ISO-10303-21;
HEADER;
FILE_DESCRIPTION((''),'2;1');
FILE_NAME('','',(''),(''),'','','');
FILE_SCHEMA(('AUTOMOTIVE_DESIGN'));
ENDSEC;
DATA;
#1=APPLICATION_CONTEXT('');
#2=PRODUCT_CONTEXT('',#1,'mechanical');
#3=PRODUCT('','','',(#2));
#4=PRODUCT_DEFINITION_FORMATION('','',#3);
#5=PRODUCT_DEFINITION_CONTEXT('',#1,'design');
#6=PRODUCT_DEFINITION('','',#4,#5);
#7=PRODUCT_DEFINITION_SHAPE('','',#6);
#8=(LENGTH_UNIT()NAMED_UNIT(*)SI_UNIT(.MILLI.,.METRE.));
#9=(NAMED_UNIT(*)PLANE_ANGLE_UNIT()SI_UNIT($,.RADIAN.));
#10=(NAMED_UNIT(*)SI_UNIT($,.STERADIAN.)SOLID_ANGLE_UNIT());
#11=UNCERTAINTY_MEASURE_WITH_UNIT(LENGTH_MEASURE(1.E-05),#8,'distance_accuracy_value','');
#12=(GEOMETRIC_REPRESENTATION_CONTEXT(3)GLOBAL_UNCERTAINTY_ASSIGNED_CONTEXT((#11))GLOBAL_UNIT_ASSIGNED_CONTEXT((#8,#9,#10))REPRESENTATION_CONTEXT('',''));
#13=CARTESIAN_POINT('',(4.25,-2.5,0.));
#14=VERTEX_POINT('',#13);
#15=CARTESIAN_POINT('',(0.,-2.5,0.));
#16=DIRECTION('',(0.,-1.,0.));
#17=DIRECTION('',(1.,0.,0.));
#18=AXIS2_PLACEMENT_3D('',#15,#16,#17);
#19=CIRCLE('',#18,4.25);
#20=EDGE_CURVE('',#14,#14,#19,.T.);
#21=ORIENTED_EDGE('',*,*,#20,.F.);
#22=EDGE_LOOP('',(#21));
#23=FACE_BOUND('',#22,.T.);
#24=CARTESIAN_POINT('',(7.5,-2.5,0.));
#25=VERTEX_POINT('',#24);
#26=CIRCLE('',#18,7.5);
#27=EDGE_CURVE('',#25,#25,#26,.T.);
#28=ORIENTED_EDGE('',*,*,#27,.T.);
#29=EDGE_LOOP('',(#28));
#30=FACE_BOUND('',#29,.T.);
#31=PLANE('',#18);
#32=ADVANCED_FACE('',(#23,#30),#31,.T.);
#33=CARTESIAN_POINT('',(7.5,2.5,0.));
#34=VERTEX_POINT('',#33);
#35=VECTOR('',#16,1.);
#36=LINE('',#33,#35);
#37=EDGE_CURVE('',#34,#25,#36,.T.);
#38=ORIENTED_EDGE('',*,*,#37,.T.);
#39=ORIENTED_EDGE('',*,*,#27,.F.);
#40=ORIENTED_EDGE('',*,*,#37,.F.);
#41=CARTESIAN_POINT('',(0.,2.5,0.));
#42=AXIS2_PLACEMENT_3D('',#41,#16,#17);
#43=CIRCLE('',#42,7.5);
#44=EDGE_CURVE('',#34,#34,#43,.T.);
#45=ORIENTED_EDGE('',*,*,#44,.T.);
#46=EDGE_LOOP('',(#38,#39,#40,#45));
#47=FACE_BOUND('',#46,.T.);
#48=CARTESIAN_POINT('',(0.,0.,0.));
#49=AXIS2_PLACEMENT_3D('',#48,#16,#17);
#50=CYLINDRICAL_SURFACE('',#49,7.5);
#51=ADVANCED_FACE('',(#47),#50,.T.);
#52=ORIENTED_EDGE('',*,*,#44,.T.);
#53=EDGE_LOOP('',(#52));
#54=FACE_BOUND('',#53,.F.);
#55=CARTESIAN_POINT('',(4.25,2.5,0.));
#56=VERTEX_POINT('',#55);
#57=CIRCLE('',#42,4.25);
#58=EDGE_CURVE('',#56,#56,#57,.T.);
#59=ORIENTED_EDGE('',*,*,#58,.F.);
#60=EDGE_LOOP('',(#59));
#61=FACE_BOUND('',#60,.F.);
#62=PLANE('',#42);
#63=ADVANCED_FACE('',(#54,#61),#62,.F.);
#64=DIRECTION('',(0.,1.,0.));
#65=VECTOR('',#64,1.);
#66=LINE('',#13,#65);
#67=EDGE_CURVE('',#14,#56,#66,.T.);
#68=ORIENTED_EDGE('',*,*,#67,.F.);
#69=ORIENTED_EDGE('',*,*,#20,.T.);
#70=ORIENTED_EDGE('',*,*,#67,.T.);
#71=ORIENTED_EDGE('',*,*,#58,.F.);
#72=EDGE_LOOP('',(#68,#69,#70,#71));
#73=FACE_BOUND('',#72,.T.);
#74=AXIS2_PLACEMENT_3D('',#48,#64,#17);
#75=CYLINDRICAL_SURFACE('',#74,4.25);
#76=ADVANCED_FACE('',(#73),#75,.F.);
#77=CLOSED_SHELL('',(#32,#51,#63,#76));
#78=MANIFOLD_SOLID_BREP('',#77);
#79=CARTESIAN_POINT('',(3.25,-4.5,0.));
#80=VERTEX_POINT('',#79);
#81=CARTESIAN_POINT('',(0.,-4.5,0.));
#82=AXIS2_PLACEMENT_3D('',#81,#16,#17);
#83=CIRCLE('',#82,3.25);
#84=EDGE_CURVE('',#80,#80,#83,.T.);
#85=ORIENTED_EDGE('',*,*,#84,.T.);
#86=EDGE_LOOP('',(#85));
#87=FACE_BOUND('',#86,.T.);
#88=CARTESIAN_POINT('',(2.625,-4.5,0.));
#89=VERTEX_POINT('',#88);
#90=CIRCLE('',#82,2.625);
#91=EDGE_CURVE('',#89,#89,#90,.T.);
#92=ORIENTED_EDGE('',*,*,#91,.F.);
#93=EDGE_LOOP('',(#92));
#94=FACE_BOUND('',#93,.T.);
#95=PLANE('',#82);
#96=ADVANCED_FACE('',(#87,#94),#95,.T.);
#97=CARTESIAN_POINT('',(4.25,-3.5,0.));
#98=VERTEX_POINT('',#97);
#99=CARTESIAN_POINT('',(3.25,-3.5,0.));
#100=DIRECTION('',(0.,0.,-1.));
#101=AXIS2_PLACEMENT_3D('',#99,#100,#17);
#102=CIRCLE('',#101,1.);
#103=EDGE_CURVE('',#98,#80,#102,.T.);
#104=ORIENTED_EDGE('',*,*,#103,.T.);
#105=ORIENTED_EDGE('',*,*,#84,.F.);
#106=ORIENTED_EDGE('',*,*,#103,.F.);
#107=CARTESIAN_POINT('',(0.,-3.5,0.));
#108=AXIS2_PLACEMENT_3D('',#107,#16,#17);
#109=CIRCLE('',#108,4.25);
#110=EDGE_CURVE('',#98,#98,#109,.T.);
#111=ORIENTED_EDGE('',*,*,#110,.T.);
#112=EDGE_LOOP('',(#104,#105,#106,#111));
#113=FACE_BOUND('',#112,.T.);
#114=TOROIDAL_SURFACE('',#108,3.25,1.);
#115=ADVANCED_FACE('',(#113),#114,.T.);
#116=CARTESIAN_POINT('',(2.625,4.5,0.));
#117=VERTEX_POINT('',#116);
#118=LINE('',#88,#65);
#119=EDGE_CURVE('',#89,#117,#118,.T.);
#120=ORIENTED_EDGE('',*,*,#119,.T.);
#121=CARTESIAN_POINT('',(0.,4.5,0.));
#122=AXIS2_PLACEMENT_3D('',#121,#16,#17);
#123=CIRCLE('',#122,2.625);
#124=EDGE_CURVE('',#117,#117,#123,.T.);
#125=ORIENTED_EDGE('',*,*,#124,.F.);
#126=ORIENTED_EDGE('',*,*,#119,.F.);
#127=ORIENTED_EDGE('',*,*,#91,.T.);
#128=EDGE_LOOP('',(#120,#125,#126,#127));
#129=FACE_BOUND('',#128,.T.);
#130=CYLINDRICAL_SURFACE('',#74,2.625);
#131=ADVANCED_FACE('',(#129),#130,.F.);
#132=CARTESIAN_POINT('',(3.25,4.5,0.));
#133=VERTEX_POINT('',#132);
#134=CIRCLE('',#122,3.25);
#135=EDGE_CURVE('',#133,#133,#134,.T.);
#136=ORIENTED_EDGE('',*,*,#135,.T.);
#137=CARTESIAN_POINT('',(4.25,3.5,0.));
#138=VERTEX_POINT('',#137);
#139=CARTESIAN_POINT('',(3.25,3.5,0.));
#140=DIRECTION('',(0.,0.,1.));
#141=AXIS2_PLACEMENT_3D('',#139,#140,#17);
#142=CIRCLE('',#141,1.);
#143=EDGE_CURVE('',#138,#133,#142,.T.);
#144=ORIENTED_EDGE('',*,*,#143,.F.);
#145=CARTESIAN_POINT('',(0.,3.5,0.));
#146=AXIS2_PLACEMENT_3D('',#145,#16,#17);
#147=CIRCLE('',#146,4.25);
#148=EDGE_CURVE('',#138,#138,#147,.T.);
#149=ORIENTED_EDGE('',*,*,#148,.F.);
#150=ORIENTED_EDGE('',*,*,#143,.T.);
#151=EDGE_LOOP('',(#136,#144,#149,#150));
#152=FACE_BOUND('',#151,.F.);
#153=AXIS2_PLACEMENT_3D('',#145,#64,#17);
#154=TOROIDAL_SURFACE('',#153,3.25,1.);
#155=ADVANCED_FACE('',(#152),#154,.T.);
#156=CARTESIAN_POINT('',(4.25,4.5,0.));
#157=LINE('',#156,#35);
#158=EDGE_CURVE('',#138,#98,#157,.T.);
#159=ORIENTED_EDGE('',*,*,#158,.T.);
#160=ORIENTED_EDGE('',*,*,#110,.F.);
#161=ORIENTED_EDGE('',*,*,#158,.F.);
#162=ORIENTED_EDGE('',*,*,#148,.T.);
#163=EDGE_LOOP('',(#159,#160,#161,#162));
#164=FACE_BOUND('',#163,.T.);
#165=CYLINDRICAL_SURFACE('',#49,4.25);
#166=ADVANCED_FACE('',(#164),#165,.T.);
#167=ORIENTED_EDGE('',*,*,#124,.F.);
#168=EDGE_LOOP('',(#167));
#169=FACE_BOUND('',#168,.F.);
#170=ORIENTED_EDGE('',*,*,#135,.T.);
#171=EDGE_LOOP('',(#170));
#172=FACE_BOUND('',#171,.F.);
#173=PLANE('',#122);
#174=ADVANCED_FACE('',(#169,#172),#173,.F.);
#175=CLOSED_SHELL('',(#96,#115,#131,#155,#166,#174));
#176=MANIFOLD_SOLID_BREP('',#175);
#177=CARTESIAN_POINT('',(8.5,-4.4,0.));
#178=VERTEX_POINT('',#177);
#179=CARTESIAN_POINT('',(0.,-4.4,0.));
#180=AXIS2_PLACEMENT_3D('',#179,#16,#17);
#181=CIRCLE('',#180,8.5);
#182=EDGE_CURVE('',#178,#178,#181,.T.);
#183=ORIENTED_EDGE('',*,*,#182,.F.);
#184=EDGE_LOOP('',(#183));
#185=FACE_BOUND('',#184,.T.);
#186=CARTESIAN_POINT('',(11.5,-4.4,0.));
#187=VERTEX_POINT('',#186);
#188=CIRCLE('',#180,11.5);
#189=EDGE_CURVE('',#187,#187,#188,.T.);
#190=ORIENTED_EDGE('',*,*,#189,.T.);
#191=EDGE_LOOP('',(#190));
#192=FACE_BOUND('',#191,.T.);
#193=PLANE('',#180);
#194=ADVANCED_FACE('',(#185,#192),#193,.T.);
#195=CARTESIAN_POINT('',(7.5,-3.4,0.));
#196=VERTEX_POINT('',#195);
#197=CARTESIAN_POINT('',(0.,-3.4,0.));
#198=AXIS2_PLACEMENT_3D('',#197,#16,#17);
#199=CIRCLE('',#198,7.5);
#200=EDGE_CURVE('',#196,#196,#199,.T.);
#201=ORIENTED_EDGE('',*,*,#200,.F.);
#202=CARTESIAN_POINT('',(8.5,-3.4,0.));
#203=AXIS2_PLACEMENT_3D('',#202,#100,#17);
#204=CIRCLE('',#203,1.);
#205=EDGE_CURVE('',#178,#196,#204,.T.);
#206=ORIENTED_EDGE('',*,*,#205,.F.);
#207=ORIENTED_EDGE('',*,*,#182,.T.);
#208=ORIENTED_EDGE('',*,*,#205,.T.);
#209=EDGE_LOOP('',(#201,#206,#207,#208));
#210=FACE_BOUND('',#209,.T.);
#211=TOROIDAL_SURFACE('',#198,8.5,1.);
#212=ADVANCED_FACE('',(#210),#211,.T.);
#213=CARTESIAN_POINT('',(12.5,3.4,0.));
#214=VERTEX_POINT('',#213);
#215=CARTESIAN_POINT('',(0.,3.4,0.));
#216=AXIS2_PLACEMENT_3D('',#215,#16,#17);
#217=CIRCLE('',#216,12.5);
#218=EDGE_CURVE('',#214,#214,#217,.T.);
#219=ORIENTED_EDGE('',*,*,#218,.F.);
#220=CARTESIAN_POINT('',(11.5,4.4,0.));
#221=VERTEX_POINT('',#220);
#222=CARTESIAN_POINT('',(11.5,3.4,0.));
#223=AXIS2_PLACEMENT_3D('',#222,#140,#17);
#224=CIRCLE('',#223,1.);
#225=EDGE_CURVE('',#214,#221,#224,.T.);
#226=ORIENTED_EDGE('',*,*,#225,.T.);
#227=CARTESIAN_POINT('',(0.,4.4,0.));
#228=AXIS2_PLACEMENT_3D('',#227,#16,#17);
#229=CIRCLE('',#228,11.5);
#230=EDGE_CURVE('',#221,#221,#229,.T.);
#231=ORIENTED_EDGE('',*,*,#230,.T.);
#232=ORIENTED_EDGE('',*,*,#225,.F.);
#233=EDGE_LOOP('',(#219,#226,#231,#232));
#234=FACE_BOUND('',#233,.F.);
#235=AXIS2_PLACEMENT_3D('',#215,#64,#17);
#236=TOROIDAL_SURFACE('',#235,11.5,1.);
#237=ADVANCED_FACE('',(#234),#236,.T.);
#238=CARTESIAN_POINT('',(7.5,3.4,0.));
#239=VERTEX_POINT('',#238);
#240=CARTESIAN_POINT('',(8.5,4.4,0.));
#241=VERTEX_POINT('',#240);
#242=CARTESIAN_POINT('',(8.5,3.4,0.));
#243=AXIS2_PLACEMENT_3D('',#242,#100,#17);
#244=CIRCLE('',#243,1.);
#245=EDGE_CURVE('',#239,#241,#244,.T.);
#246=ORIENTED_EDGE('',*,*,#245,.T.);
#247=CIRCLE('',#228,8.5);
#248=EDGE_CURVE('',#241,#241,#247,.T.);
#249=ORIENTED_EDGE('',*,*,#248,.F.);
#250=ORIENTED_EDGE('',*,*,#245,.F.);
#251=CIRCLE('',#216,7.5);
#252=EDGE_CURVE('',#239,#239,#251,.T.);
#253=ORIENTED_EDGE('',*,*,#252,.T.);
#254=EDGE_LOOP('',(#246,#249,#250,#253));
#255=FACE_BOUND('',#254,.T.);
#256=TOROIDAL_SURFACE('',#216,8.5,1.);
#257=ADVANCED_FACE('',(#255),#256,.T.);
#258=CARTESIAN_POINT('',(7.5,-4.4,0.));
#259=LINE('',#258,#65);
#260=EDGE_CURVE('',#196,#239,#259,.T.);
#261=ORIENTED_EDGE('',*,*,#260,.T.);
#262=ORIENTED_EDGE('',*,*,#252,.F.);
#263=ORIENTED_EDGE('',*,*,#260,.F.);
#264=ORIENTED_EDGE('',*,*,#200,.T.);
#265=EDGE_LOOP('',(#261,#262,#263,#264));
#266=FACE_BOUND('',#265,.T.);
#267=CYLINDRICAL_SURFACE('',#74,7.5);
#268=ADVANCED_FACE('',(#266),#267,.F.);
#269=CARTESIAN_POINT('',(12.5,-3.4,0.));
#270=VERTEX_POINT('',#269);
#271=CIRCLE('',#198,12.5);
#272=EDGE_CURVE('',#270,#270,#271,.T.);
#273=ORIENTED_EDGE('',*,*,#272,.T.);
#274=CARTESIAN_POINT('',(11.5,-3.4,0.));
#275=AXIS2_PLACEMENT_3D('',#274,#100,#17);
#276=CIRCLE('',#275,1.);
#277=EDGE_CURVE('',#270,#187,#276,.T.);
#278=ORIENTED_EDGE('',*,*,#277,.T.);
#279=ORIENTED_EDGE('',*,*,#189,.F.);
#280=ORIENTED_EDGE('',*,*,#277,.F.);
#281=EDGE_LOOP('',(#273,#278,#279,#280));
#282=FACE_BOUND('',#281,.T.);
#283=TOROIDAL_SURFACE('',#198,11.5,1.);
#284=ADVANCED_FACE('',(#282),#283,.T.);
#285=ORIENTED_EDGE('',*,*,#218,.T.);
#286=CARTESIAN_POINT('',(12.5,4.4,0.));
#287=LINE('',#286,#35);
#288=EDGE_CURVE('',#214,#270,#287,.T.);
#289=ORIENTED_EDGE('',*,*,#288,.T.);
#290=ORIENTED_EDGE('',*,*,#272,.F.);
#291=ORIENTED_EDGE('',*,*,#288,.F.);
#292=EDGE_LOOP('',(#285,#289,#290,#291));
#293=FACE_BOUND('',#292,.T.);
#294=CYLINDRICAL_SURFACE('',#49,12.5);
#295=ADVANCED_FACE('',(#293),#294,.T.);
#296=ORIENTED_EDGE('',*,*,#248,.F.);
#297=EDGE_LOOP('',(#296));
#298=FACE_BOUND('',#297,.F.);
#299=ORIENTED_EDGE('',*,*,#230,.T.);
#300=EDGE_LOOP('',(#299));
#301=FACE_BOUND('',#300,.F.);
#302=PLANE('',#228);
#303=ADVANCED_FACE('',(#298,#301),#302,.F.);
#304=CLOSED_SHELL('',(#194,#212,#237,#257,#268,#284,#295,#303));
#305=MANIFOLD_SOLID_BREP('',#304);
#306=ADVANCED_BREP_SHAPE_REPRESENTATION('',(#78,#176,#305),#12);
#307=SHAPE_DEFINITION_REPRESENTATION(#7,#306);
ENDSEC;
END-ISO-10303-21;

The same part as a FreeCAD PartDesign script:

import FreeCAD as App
import Part
import Sketcher
from FreeCAD import Vector
Q = App.Units.Quantity


def edges_at(feature, points):
    """Names of the edges that pass closest to the given points."""
    edges = feature.Shape.Edges
    near = lambda p: min(range(len(edges)), key=lambda i: edges[i].distToShape(Part.Vertex(*p))[0])
    return sorted({f"Edge{near(p) + 1}" for p in points})

doc = App.newDocument("Part")
body = doc.addObject("PartDesign::Body", "Body")

sketch1 = doc.addObject("Sketcher::SketchObject", "Sketch")
body.addObject(sketch1)
sketch1.AttachmentSupport = (doc.XZ_Plane, [""])
sketch1.MapMode = "FlatFace"
sketch1.addGeometry(Part.Circle(Vector(0, 0, 0), Vector(0, 0, 1), 12), False)
sketch1.addGeometry(Part.Circle(Vector(0, 0, 0), Vector(0, 0, 1), 8), False)
sketch1.addConstraint(Sketcher.Constraint("Coincident", 0, 3, -1, 1))
sketch1.addConstraint(Sketcher.Constraint("Coincident", 1, 3, -1, 1))
sketch1.addConstraint(Sketcher.Constraint("Diameter", 0, Q("25 mm")))
sketch1.addConstraint(Sketcher.Constraint("Diameter", 1, Q("15 mm")))
pad1 = doc.addObject("PartDesign::Pad", "Pad")
body.addObject(pad1)
pad1.Profile = sketch1
pad1.Length = 8.8
pad1.Midplane = True
doc.recompute()

fillet = doc.addObject("PartDesign::Fillet", "Fillet")
body.addObject(fillet)
fillet.Base = (pad1, edges_at(pad1, [
    (-7.5, -4.4, 0),
    (-12.5, -4.4, 0),
    (-7.5, 4.4, 0),
    (-12.5, 4.4, 0),
]))
fillet.Radius = 1
body2 = doc.addObject("PartDesign::Body", "Body001")

sketch2 = doc.addObject("Sketcher::SketchObject", "Sketch001")
body2.addObject(sketch2)
sketch2.AttachmentSupport = (doc.getObject("XZ_Plane001"), [""])
sketch2.MapMode = "FlatFace"
sketch2.addGeometry(Part.Circle(Vector(0, 0, 0), Vector(0, 0, 1), 4.2), False)
sketch2.addGeometry(Part.Circle(Vector(0, 0, 0), Vector(0, 0, 1), 2.6), False)
sketch2.addConstraint(Sketcher.Constraint("Coincident", 0, 3, -1, 1))
sketch2.addConstraint(Sketcher.Constraint("Coincident", 1, 3, -1, 1))
sketch2.addConstraint(Sketcher.Constraint("Diameter", 0, Q("8.5 mm")))
sketch2.addConstraint(Sketcher.Constraint("Diameter", 1, Q("5.25 mm")))
pad2 = doc.addObject("PartDesign::Pad", "Pad001")
body2.addObject(pad2)
pad2.Profile = sketch2
pad2.Length = 9
pad2.Midplane = True
doc.recompute()

fillet2 = doc.addObject("PartDesign::Fillet", "Fillet001")
body2.addObject(fillet2)
fillet2.Base = (pad2, edges_at(pad2, [(-4.25, -4.5, 0), (-4.25, 4.5, 0)]))
fillet2.Radius = 1
body3 = doc.addObject("PartDesign::Body", "Body002")

sketch3 = doc.addObject("Sketcher::SketchObject", "Sketch002")
body3.addObject(sketch3)
sketch3.AttachmentSupport = (doc.getObject("XZ_Plane002"), [""])
sketch3.MapMode = "FlatFace"
sketch3.addGeometry(Part.Circle(Vector(0, 0, 0), Vector(0, 0, 1), 7.5), False)
sketch3.addGeometry(Part.Circle(Vector(0, 0, 0), Vector(0, 0, 1), 4.2), False)
sketch3.addConstraint(Sketcher.Constraint("Coincident", 0, 3, -1, 1))
sketch3.addConstraint(Sketcher.Constraint("Coincident", 1, 3, -1, 1))
sketch3.addConstraint(Sketcher.Constraint("Diameter", 0, Q("15 mm")))
sketch3.addConstraint(Sketcher.Constraint("Diameter", 1, Q("8.5 mm")))
pad3 = doc.addObject("PartDesign::Pad", "Pad002")
body3.addObject(pad3)
pad3.Profile = sketch3
pad3.Length = 5
pad3.Midplane = True

doc.recompute()
